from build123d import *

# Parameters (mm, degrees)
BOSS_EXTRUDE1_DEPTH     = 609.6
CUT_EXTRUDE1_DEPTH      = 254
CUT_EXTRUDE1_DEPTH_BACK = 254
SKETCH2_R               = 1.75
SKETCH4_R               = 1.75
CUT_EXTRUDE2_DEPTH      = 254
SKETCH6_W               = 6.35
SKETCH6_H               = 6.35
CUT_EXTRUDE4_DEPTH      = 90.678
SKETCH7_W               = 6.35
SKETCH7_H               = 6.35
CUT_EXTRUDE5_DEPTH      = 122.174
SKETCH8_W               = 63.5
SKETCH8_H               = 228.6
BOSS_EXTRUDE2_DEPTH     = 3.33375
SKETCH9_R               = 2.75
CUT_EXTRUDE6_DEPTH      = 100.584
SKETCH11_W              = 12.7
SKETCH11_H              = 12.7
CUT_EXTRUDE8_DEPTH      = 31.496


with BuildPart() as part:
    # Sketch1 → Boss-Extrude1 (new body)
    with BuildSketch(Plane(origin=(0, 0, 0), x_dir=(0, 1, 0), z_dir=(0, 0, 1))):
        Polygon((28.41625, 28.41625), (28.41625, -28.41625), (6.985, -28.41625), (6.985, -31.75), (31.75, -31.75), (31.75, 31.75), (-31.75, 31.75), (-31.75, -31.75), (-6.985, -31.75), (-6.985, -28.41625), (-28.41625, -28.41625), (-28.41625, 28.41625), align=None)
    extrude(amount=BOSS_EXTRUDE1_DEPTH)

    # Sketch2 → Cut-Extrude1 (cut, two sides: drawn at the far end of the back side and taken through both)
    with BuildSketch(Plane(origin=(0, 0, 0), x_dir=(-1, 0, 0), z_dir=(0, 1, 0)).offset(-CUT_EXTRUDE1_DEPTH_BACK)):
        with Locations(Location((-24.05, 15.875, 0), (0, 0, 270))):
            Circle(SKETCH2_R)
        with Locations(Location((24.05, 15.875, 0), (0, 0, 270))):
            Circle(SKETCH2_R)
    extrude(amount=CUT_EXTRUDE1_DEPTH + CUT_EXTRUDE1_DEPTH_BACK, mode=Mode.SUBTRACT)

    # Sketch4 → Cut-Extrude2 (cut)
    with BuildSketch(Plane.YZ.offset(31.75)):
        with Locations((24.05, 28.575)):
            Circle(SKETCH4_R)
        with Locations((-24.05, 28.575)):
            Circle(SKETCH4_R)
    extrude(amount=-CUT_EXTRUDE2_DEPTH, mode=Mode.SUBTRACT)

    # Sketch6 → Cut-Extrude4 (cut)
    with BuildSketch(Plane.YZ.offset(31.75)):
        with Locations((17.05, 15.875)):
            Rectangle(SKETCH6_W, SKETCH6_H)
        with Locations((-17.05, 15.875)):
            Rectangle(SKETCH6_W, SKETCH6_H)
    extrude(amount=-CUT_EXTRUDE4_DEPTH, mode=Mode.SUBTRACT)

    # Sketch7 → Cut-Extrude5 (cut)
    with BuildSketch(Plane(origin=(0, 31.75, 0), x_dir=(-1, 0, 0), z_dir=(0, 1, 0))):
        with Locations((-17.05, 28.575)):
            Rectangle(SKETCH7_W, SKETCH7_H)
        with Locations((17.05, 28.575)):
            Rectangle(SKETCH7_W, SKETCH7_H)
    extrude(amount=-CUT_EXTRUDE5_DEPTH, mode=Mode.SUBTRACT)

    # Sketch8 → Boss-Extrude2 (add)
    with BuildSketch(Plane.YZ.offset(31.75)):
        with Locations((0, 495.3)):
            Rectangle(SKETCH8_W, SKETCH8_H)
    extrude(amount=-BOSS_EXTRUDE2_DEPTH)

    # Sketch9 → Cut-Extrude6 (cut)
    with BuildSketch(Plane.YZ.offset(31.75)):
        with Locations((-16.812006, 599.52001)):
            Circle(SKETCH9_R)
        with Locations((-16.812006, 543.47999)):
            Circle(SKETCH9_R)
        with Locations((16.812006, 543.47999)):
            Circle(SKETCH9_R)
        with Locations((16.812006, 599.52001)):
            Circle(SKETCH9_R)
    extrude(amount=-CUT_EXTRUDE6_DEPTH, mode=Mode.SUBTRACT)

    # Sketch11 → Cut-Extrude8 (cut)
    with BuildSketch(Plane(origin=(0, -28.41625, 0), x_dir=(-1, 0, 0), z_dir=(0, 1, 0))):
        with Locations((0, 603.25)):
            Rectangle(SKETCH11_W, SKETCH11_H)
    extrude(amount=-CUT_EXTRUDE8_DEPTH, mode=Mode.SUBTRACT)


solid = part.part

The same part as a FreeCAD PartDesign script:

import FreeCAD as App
import Part
import Sketcher
from FreeCAD import Vector
Q = App.Units.Quantity

doc = App.newDocument("Part")
body = doc.addObject("PartDesign::Body", "Body")

# Sketch on XY plane
sketch1 = body.newObject("Sketcher::SketchObject", "Sketch")
sketch1.AttachmentSupport = (doc.getObject("XY_Plane"), [""])
sketch1.MapMode = "FlatFace"
sketch1.addGeometry(Part.LineSegment(Vector(-28.41625, 28.41625, 0), Vector(28.41625, 28.41625, 0)), False)
sketch1.addGeometry(Part.LineSegment(Vector(28.41625, 28.41625, 0), Vector(28.41625, 6.985, 0)), False)
sketch1.addGeometry(Part.LineSegment(Vector(28.41625, 6.985, 0), Vector(31.75, 6.985, 0)), False)
sketch1.addGeometry(Part.LineSegment(Vector(31.75, 6.985, 0), Vector(31.75, 31.75, 0)), False)
sketch1.addGeometry(Part.LineSegment(Vector(31.75, 31.75, 0), Vector(-31.75, 31.75, 0)), False)
sketch1.addGeometry(Part.LineSegment(Vector(-31.75, 31.75, 0), Vector(-31.75, -31.75, 0)), False)
sketch1.addGeometry(Part.LineSegment(Vector(-31.75, -31.75, 0), Vector(31.75, -31.75, 0)), False)
sketch1.addGeometry(Part.LineSegment(Vector(31.75, -31.75, 0), Vector(31.75, -6.985, 0)), False)
sketch1.addGeometry(Part.LineSegment(Vector(31.75, -6.985, 0), Vector(28.41625, -6.985, 0)), False)
sketch1.addGeometry(Part.LineSegment(Vector(28.41625, -6.985, 0), Vector(28.41625, -28.41625, 0)), False)
sketch1.addGeometry(Part.LineSegment(Vector(28.41625, -28.41625, 0), Vector(-28.41625, -28.41625, 0)), False)
sketch1.addGeometry(Part.LineSegment(Vector(-28.41625, -28.41625, 0), Vector(-28.41625, 28.41625, 0)), False)
sketch1.addConstraint(Sketcher.Constraint("Coincident", 0, 2, 1, 1))
sketch1.addConstraint(Sketcher.Constraint("Coincident", 1, 2, 2, 1))
sketch1.addConstraint(Sketcher.Constraint("Coincident", 2, 2, 3, 1))
sketch1.addConstraint(Sketcher.Constraint("Coincident", 3, 2, 4, 1))
sketch1.addConstraint(Sketcher.Constraint("Coincident", 4, 2, 5, 1))
sketch1.addConstraint(Sketcher.Constraint("Coincident", 5, 2, 6, 1))
sketch1.addConstraint(Sketcher.Constraint("Coincident", 6, 2, 7, 1))
sketch1.addConstraint(Sketcher.Constraint("Coincident", 7, 2, 8, 1))
sketch1.addConstraint(Sketcher.Constraint("Coincident", 8, 2, 9, 1))
sketch1.addConstraint(Sketcher.Constraint("Coincident", 9, 2, 10, 1))
sketch1.addConstraint(Sketcher.Constraint("Coincident", 10, 2, 11, 1))
sketch1.addConstraint(Sketcher.Constraint("Coincident", 11, 2, 0, 1))
sketch1.addConstraint(Sketcher.Constraint("Horizontal", 0))
sketch1.addConstraint(Sketcher.Constraint("Vertical", 1))
sketch1.addConstraint(Sketcher.Constraint("Horizontal", 2))
sketch1.addConstraint(Sketcher.Constraint("Vertical", 3))
sketch1.addConstraint(Sketcher.Constraint("Horizontal", 4))
sketch1.addConstraint(Sketcher.Constraint("Vertical", 5))
sketch1.addConstraint(Sketcher.Constraint("Horizontal", 6))
sketch1.addConstraint(Sketcher.Constraint("Vertical", 7))
sketch1.addConstraint(Sketcher.Constraint("Horizontal", 8))
sketch1.addConstraint(Sketcher.Constraint("Vertical", 9))
sketch1.addConstraint(Sketcher.Constraint("Horizontal", 10))
sketch1.addConstraint(Sketcher.Constraint("Vertical", 11))
sketch1.addConstraint(Sketcher.Constraint("Symmetric", 3, 2, 5, 2, -1, 1))
sketch1.addConstraint(Sketcher.Constraint("Symmetric", 0, 2, 10, 2, -1, 1))
sketch1.addConstraint(Sketcher.Constraint("Symmetric", 2, 2, 7, 2, -1))
sketch1.addConstraint(Sketcher.Constraint("Vertical", 1, 2, 8, 2))
sketch1.addConstraint(Sketcher.Constraint("Equal", 6, 5))
sketch1.addConstraint(Sketcher.Constraint("Equal", 10, 11))
sketch1.addConstraint(Sketcher.Constraint("DistanceX", 4, 2, 4, 1, Q("2.5 in")))
sketch1.addConstraint(Sketcher.Constraint("DistanceY", 1, 2, 1, 1, Q("0.84375 in")))
sketch1.addConstraint(Sketcher.Constraint("DistanceY", 3, 1, 3, 2, Q("0.975 in")))
pad1 = body.newObject("PartDesign::Pad", "Pad")
pad1.Profile = sketch1
pad1.Length = Q("24 in")

# Sketch on XZ plane
sketch2 = body.newObject("Sketcher::SketchObject", "Sketch001")
sketch2.AttachmentSupport = (doc.getObject("XZ_Plane"), [""])
sketch2.MapMode = "FlatFace"
sketch2.addGeometry(Part.Circle(Vector(24.05, 15.875, 0), Vector(0, 0, 1), 1.75), False)
sketch2.addGeometry(Part.Circle(Vector(-24.05, 15.875, 0), Vector(0, 0, 1), 1.75), False)
sketch2.addConstraint(Sketcher.Constraint("Equal", 0, 1))
sketch2.addConstraint(Sketcher.Constraint("Symmetric", 0, 3, 1, 3, -2))
sketch2.addConstraint(Sketcher.Constraint("Diameter", 0, Q("3.5 mm")))
sketch2.addConstraint(Sketcher.Constraint("DistanceY", -1, 1, 0, 3, Q("0.625 in")))
sketch2.addConstraint(Sketcher.Constraint("DistanceX", -1, 1, 0, 3, Q("24.05 mm")))
pocket1 = body.newObject("PartDesign::Pocket", "Pocket")
pocket1.Profile = sketch2
pocket1.Type = "ThroughAll"
pocket1.Midplane = True

# Sketch on YZ plane
sketch3 = body.newObject("Sketcher::SketchObject", "Sketch002")
sketch3.AttachmentSupport = (doc.getObject("YZ_Plane"), [""])
sketch3.MapMode = "FlatFace"
sketch3.AttachmentOffset = App.Placement(Vector(0, 0, 1.25 * 25.4), App.Rotation())
sketch3.addGeometry(Part.Circle(Vector(24.05, 28.575, 0), Vector(0, 0, 1), 1.75), False)
sketch3.addGeometry(Part.Circle(Vector(-24.05, 28.575, 0), Vector(0, 0, 1), 1.75), False)
sketch3.addConstraint(Sketcher.Constraint("Equal", 0, 1))
sketch3.addConstraint(Sketcher.Constraint("Symmetric", 0, 3, 1, 3, -2))
sketch3.addConstraint(Sketcher.Constraint("Diameter", 0, Q("3.5 mm")))
sketch3.addConstraint(Sketcher.Constraint("DistanceY", -1, 1, 0, 3, Q("1.125 in")))
sketch3.addConstraint(Sketcher.Constraint("DistanceX", -1, 1, 0, 3, Q("24.05 mm")))
pocket2 = body.newObject("PartDesign::Pocket", "Pocket001")
pocket2.Profile = sketch3
pocket2.Length = Q("10 in")

# Sketch on YZ plane
sketch4 = body.newObject("Sketcher::SketchObject", "Sketch003")
sketch4.AttachmentSupport = (doc.getObject("YZ_Plane"), [""])
sketch4.MapMode = "FlatFace"
sketch4.AttachmentOffset = App.Placement(Vector(0, 0, 1.25 * 25.4), App.Rotation())
sketch4.addGeometry(Part.LineSegment(Vector(13.875, 19.05, 0), Vector(13.875, 12.7, 0)), False)
sketch4.addGeometry(Part.LineSegment(Vector(13.875, 12.7, 0), Vector(20.225, 12.7, 0)), False)
sketch4.addGeometry(Part.LineSegment(Vector(20.225, 12.7, 0), Vector(20.225, 19.05, 0)), False)
sketch4.addGeometry(Part.LineSegment(Vector(20.225, 19.05, 0), Vector(13.875, 19.05, 0)), False)
sketch4.addGeometry(Part.LineSegment(Vector(-20.225, 19.05, 0), Vector(-20.225, 12.7, 0)), False)
sketch4.addGeometry(Part.LineSegment(Vector(-20.225, 12.7, 0), Vector(-13.875, 12.7, 0)), False)
sketch4.addGeometry(Part.LineSegment(Vector(-13.875, 12.7, 0), Vector(-13.875, 19.05, 0)), False)
sketch4.addGeometry(Part.LineSegment(Vector(-13.875, 19.05, 0), Vector(-20.225, 19.05, 0)), False)
sketch4.addConstraint(Sketcher.Constraint("Coincident", 0, 2, 1, 1))
sketch4.addConstraint(Sketcher.Constraint("Coincident", 1, 2, 2, 1))
sketch4.addConstraint(Sketcher.Constraint("Coincident", 2, 2, 3, 1))
sketch4.addConstraint(Sketcher.Constraint("Coincident", 3, 2, 0, 1))
sketch4.addConstraint(Sketcher.Constraint("Coincident", 4, 2, 5, 1))
sketch4.addConstraint(Sketcher.Constraint("Coincident", 5, 2, 6, 1))
sketch4.addConstraint(Sketcher.Constraint("Coincident", 6, 2, 7, 1))
sketch4.addConstraint(Sketcher.Constraint("Coincident", 7, 2, 4, 1))
sketch4.addConstraint(Sketcher.Constraint("Vertical", 0))
sketch4.addConstraint(Sketcher.Constraint("Horizontal", 1))
sketch4.addConstraint(Sketcher.Constraint("Vertical", 2))
sketch4.addConstraint(Sketcher.Constraint("Horizontal", 3))
sketch4.addConstraint(Sketcher.Constraint("Vertical", 4))
sketch4.addConstraint(Sketcher.Constraint("Horizontal", 5))
sketch4.addConstraint(Sketcher.Constraint("Vertical", 6))
sketch4.addConstraint(Sketcher.Constraint("Horizontal", 7))
sketch4.addConstraint(Sketcher.Constraint("Symmetric", 1, 2, 4, 2, -2))
sketch4.addConstraint(Sketcher.Constraint("Symmetric", 3, 2, 6, 2, -2))
sketch4.addConstraint(Sketcher.Constraint("Equal", 7, 0))
sketch4.addConstraint(Sketcher.Constraint("DistanceX", 1, 1, 1, 2, Q("0.25 in")))
sketch4.addConstraint(Sketcher.Constraint("DistanceY", -1, 1, 0, 2, Q("0.5 in")))
sketch4.addConstraint(Sketcher.Constraint("DistanceX", -1, 1, 0, 2, Q("13.875 mm")))
pocket3 = body.newObject("PartDesign::Pocket", "Pocket002")
pocket3.Profile = sketch4
pocket3.Length = Q("3.57 in")

# Sketch on XZ plane
sketch5 = body.newObject("Sketcher::SketchObject", "Sketch004")
sketch5.AttachmentSupport = (doc.getObject("XZ_Plane"), [""])
sketch5.MapMode = "FlatFace"
sketch5.AttachmentOffset = App.Placement(Vector(0, 0, -1.25 * 25.4), App.Rotation())
sketch5.addGeometry(Part.LineSegment(Vector(20.225, 31.75, 0), Vector(20.225, 25.4, 0)), False)
sketch5.addGeometry(Part.LineSegment(Vector(20.225, 25.4, 0), Vector(13.875, 25.4, 0)), False)
sketch5.addGeometry(Part.LineSegment(Vector(13.875, 25.4, 0), Vector(13.875, 31.75, 0)), False)
sketch5.addGeometry(Part.LineSegment(Vector(13.875, 31.75, 0), Vector(20.225, 31.75, 0)), False)
sketch5.addGeometry(Part.LineSegment(Vector(-13.875, 31.75, 0), Vector(-13.875, 25.4, 0)), False)
sketch5.addGeometry(Part.LineSegment(Vector(-13.875, 25.4, 0), Vector(-20.225, 25.4, 0)), False)
sketch5.addGeometry(Part.LineSegment(Vector(-20.225, 25.4, 0), Vector(-20.225, 31.75, 0)), False)
sketch5.addGeometry(Part.LineSegment(Vector(-20.225, 31.75, 0), Vector(-13.875, 31.75, 0)), False)
sketch5.addConstraint(Sketcher.Constraint("Coincident", 0, 2, 1, 1))
sketch5.addConstraint(Sketcher.Constraint("Coincident", 1, 2, 2, 1))
sketch5.addConstraint(Sketcher.Constraint("Coincident", 2, 2, 3, 1))
sketch5.addConstraint(Sketcher.Constraint("Coincident", 3, 2, 0, 1))
sketch5.addConstraint(Sketcher.Constraint("Coincident", 4, 2, 5, 1))
sketch5.addConstraint(Sketcher.Constraint("Coincident", 5, 2, 6, 1))
sketch5.addConstraint(Sketcher.Constraint("Coincident", 6, 2, 7, 1))
sketch5.addConstraint(Sketcher.Constraint("Coincident", 7, 2, 4, 1))
sketch5.addConstraint(Sketcher.Constraint("Vertical", 0))
sketch5.addConstraint(Sketcher.Constraint("Horizontal", 1))
sketch5.addConstraint(Sketcher.Constraint("Vertical", 2))
sketch5.addConstraint(Sketcher.Constraint("Horizontal", 3))
sketch5.addConstraint(Sketcher.Constraint("Vertical", 4))
sketch5.addConstraint(Sketcher.Constraint("Horizontal", 5))
sketch5.addConstraint(Sketcher.Constraint("Vertical", 6))
sketch5.addConstraint(Sketcher.Constraint("Horizontal", 7))
sketch5.addConstraint(Sketcher.Constraint("Symmetric", 1, 2, 4, 2, -2))
sketch5.addConstraint(Sketcher.Constraint("Symmetric", 3, 2, 6, 2, -2))
sketch5.addConstraint(Sketcher.Constraint("Equal", 7, 0))
sketch5.addConstraint(Sketcher.Constraint("DistanceY", -1, 1, 0, 2, Q("1 in")))
sketch5.addConstraint(Sketcher.Constraint("DistanceX", 1, 2, 1, 1, Q("0.25 in")))
sketch5.addConstraint(Sketcher.Constraint("DistanceX", -1, 1, 0, 2, Q("20.225 mm")))
pocket4 = body.newObject("PartDesign::Pocket", "Pocket003")
pocket4.Profile = sketch5
pocket4.Length = Q("4.81 in")
pocket4.Reversed = True

# Sketch on YZ plane
sketch6 = body.newObject("Sketcher::SketchObject", "Sketch005")
sketch6.AttachmentSupport = (doc.getObject("YZ_Plane"), [""])
sketch6.MapMode = "FlatFace"
sketch6.AttachmentOffset = App.Placement(Vector(0, 0, 1.25 * 25.4), App.Rotation())
sketch6.addGeometry(Part.LineSegment(Vector(-31.75, 609.6, 0), Vector(-31.75, 381, 0)), False)
sketch6.addGeometry(Part.LineSegment(Vector(-31.75, 381, 0), Vector(31.75, 381, 0)), False)
sketch6.addGeometry(Part.LineSegment(Vector(31.75, 381, 0), Vector(31.75, 609.6, 0)), False)
sketch6.addGeometry(Part.LineSegment(Vector(31.75, 609.6, 0), Vector(-31.75, 609.6, 0)), False)
sketch6.addConstraint(Sketcher.Constraint("Coincident", 0, 2, 1, 1))
sketch6.addConstraint(Sketcher.Constraint("Coincident", 1, 2, 2, 1))
sketch6.addConstraint(Sketcher.Constraint("Coincident", 2, 2, 3, 1))
sketch6.addConstraint(Sketcher.Constraint("Coincident", 3, 2, 0, 1))
sketch6.addConstraint(Sketcher.Constraint("Vertical", 0))
sketch6.addConstraint(Sketcher.Constraint("Horizontal", 1))
sketch6.addConstraint(Sketcher.Constraint("Vertical", 2))
sketch6.addConstraint(Sketcher.Constraint("Horizontal", 3))
sketch6.addConstraint(Sketcher.Constraint("DistanceY", 0, 2, 0, 1, Q("9 in")))
sketch6.addConstraint(Sketcher.Constraint("DistanceX", 1, 1, 1, 2, Q("2.5 in")))
sketch6.addConstraint(Sketcher.Constraint("DistanceY", -1, 1, 0, 2, Q("15 in")))
sketch6.addConstraint(Sketcher.Constraint("DistanceX", 0, 2, -1, 1, Q("1.25 in")))
pad2 = body.newObject("PartDesign::Pad", "Pad001")
pad2.Profile = sketch6
pad2.Length = 3.33375
pad2.Reversed = True

# Sketch on YZ plane
sketch7 = body.newObject("Sketcher::SketchObject", "Sketch006")
sketch7.AttachmentSupport = (doc.getObject("YZ_Plane"), [""])
sketch7.MapMode = "FlatFace"
sketch7.AttachmentOffset = App.Placement(Vector(0, 0, 1.25 * 25.4), App.Rotation())
sketch7.addGeometry(Part.Circle(Vector(-16.812006, 599.52001, 0), Vector(0, 0, 1), 2.75), False)
sketch7.addGeometry(Part.Circle(Vector(-16.812006, 543.47999, 0), Vector(0, 0, 1), 2.75), False)
sketch7.addGeometry(Part.Circle(Vector(16.812006, 543.47999, 0), Vector(0, 0, 1), 2.75), False)
sketch7.addGeometry(Part.Circle(Vector(16.812006, 599.52001, 0), Vector(0, 0, 1), 2.75), False)
sketch7.addConstraint(Sketcher.Constraint("Equal", 0, 1))
sketch7.addConstraint(Sketcher.Constraint("Equal", 1, 2))
sketch7.addConstraint(Sketcher.Constraint("Equal", 2, 3))
sketch7.addConstraint(Sketcher.Constraint("Symmetric", 1, 3, 2, 3, -2))
sketch7.addConstraint(Sketcher.Constraint("Symmetric", 0, 3, 3, 3, -2))
sketch7.addConstraint(Sketcher.Constraint("Vertical", 0, 3, 1, 3))
sketch7.addConstraint(Sketcher.Constraint("Diameter", 0, Q("5.5 mm")))
sketch7.addConstraint(Sketcher.Constraint("DistanceY", 1, 3, 0, 3, Q("2.2063 in")))
sketch7.addConstraint(Sketcher.Constraint("DistanceY", -1, 1, 0, 3, Q("599.52001 mm")))
sketch7.addConstraint(Sketcher.Constraint("DistanceX", 0, 3, -1, 1, Q("16.812006 mm")))
pocket5 = body.newObject("PartDesign::Pocket", "Pocket004")
pocket5.Profile = sketch7
pocket5.Length = Q("3.96 in")

# Sketch on XZ plane
sketch8 = body.newObject("Sketcher::SketchObject", "Sketch007")
sketch8.AttachmentSupport = (doc.getObject("XZ_Plane"), [""])
sketch8.MapMode = "FlatFace"
sketch8.AttachmentOffset = App.Placement(Vector(0, 0, 28.41625), App.Rotation())
sketch8.addGeometry(Part.LineSegment(Vector(6.35, 609.6, 0), Vector(6.35, 596.9, 0)), False)
sketch8.addGeometry(Part.LineSegment(Vector(6.35, 596.9, 0), Vector(-6.35, 596.9, 0)), False)
sketch8.addGeometry(Part.LineSegment(Vector(-6.35, 596.9, 0), Vector(-6.35, 609.6, 0)), False)
sketch8.addGeometry(Part.LineSegment(Vector(-6.35, 609.6, 0), Vector(6.35, 609.6, 0)), False)
sketch8.addConstraint(Sketcher.Constraint("Coincident", 0, 2, 1, 1))
sketch8.addConstraint(Sketcher.Constraint("Coincident", 1, 2, 2, 1))
sketch8.addConstraint(Sketcher.Constraint("Coincident", 2, 2, 3, 1))
sketch8.addConstraint(Sketcher.Constraint("Coincident", 3, 2, 0, 1))
sketch8.addConstraint(Sketcher.Constraint("Vertical", 0))
sketch8.addConstraint(Sketcher.Constraint("Horizontal", 1))
sketch8.addConstraint(Sketcher.Constraint("Vertical", 2))
sketch8.addConstraint(Sketcher.Constraint("Horizontal", 3))
sketch8.addConstraint(Sketcher.Constraint("Equal", 3, 0))
sketch8.addConstraint(Sketcher.Constraint("DistanceX", 1, 2, 1, 1, Q("0.5 in")))
sketch8.addConstraint(Sketcher.Constraint("DistanceY", -1, 1, 2, 2, Q("24 in")))
sketch8.addConstraint(Sketcher.Constraint("DistanceX", -1, 1, 0, 2, Q("0.25 in")))
pocket6 = body.newObject("PartDesign::Pocket", "Pocket005")
pocket6.Profile = sketch8
pocket6.Length = Q("1.24 in")
pocket6.Reversed = True

doc.recompute()
